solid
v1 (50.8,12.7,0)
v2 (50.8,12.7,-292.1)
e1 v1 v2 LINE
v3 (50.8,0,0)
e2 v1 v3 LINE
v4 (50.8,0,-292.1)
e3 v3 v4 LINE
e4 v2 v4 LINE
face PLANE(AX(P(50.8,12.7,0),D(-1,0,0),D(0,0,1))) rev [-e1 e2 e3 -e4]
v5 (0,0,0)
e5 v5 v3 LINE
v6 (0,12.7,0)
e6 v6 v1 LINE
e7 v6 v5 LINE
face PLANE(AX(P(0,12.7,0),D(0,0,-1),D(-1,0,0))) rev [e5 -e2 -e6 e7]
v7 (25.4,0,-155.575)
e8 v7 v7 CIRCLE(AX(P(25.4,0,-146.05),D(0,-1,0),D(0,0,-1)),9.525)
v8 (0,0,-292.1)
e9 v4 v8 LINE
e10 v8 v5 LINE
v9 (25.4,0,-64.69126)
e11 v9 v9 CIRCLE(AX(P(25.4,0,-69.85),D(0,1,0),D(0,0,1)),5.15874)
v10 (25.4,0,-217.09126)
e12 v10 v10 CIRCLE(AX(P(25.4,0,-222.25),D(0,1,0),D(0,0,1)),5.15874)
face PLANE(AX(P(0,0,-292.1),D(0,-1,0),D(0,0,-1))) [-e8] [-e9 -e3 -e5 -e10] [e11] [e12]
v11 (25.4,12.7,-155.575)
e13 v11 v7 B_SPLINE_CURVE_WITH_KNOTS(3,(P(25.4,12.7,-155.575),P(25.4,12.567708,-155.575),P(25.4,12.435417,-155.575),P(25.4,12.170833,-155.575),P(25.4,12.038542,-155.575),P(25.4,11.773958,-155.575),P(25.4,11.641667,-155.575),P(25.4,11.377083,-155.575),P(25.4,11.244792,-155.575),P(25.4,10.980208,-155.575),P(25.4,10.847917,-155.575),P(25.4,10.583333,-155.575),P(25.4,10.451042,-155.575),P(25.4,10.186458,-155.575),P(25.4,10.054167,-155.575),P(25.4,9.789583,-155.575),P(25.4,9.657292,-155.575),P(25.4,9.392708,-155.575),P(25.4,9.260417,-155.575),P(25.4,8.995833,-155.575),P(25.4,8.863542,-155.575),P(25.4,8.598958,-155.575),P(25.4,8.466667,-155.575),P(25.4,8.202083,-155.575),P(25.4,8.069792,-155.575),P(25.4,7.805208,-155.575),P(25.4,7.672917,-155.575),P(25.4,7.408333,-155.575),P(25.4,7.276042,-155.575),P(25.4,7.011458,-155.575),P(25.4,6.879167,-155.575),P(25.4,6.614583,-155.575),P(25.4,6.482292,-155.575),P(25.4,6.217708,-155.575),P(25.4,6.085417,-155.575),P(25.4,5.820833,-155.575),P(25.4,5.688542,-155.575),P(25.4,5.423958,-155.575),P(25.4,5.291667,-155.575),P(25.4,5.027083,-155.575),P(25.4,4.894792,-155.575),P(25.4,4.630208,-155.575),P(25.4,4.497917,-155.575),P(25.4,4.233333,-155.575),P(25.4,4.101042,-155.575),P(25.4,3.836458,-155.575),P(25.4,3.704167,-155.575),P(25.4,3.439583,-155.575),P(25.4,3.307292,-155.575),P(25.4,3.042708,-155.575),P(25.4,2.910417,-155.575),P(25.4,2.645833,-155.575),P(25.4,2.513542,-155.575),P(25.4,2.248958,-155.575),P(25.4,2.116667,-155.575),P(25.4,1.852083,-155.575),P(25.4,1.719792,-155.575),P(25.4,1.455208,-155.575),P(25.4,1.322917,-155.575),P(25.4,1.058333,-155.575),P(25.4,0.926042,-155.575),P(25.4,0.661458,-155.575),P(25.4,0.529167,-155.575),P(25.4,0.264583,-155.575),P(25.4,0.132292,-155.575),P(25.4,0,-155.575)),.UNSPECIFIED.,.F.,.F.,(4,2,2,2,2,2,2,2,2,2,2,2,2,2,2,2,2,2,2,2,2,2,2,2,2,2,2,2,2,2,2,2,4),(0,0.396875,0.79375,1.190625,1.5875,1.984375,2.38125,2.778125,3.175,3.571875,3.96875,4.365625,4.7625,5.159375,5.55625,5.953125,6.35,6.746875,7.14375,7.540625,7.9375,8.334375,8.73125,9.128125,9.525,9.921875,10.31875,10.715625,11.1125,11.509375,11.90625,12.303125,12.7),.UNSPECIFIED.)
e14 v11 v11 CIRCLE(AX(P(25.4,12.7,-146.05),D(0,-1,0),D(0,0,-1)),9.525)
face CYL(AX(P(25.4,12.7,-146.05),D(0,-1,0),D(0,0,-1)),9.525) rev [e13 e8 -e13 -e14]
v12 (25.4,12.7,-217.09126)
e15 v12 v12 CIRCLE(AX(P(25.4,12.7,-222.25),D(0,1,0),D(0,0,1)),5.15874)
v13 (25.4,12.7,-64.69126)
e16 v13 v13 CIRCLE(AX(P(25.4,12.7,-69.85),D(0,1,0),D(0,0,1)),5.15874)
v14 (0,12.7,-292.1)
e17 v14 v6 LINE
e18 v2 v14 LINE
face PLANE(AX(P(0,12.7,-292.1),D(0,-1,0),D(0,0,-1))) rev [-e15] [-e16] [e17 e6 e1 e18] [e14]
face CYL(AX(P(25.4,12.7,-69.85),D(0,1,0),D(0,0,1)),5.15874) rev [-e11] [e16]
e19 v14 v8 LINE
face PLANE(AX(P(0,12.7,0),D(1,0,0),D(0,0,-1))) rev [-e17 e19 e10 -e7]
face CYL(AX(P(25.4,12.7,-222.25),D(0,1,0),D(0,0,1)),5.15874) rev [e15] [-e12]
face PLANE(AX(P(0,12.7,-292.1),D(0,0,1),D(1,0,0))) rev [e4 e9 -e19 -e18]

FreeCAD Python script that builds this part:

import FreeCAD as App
import Part
import Sketcher
from FreeCAD import Vector
Q = App.Units.Quantity

doc = App.newDocument("Part")
body = doc.addObject("PartDesign::Body", "Body")

# Sketch on XZ plane
sketch1 = body.newObject("Sketcher::SketchObject", "Sketch")
sketch1.AttachmentSupport = (doc.getObject("XZ_Plane"), [""])
sketch1.MapMode = "FlatFace"
sketch1.addGeometry([
    Part.LineSegment(Vector(0, -292.1, 0), Vector(0, 0, 0)),
    Part.LineSegment(Vector(0, 0, 0), Vector(50.8, 0, 0)),
    Part.LineSegment(Vector(50.8, 0, 0), Vector(50.8, -292.1, 0)),
    Part.LineSegment(Vector(50.8, -292.1, 0), Vector(0, -292.1, 0)),
], False)
sketch1.addConstraint([
    Sketcher.Constraint("Coincident", 0, 2, 1, 1),
    Sketcher.Constraint("Coincident", 1, 2, 2, 1),
    Sketcher.Constraint("Coincident", 2, 2, 3, 1),
    Sketcher.Constraint("Coincident", 3, 2, 0, 1),
    Sketcher.Constraint("Vertical", 0),
    Sketcher.Constraint("Horizontal", 1),
    Sketcher.Constraint("Vertical", 2),
    Sketcher.Constraint("Horizontal", 3),
    Sketcher.Constraint("Coincident", 0, 2, -1, 1),
    Sketcher.Constraint("DistanceX", 1, 1, 1, 2, Q("2 in")),
    Sketcher.Constraint("DistanceY", 0, 1, 0, 2, Q("11.5 in")),
])
pad1 = body.newObject("PartDesign::Pad", "Pad")
pad1.Profile = sketch1
pad1.Length = Q("0.5 in")
pad1.Reversed = True

# Sketch on XZ plane
sketch2 = body.newObject("Sketcher::SketchObject", "Sketch001")
sketch2.AttachmentSupport = (doc.getObject("XZ_Plane"), [""])
sketch2.MapMode = "FlatFace"
sketch2.AttachmentOffset = App.Placement(Vector(0, 0, -0.5 * 25.4), App.Rotation())
sketch2.addGeometry([
    Part.Circle(Vector(25.4, -69.85, 0), Vector(0, 0, 1), 5.15874),
    Part.Circle(Vector(25.4, -222.25, 0), Vector(0, 0, 1), 5.15874),
], False)
sketch2.addConstraint([
    Sketcher.Constraint("Equal", 0, 1),
    Sketcher.Constraint("Vertical", 0, 3, 1, 3),
    Sketcher.Constraint("DistanceX", -1, 1, 0, 3, Q("1 in")),
    Sketcher.Constraint("DistanceY", 1, 3, 0, 3, Q("6 in")),
    Sketcher.Constraint("Diameter", 0, Q("0.4062 in")),
    Sketcher.Constraint("DistanceY", 0, 3, -1, 1, Q("2.75 in")),
])
doc.recompute()
hole = body.newObject("PartDesign::Hole", "Hole")
hole.Profile = sketch2
hole.ThreadType = "None"
hole.Diameter = Q("0.4062 in")
hole.DepthType = "ThroughAll"
hole.Reversed = True

# Sketch on XZ plane
sketch3 = body.newObject("Sketcher::SketchObject", "Sketch002")
sketch3.AttachmentSupport = (doc.getObject("XZ_Plane"), [""])
sketch3.MapMode = "FlatFace"
sketch3.addGeometry(Part.Circle(Vector(25.4, -146.05, 0), Vector(0, 0, 1), 9.525), False)
sketch3.addConstraint([
    Sketcher.Constraint("Diameter", 0, Q("0.75 in")),
    Sketcher.Constraint("DistanceX", -1, 1, 0, 3, Q("1 in")),
    Sketcher.Constraint("DistanceY", 0, 3, -1, 1, Q("5.75 in")),
])
pocket1 = body.newObject("PartDesign::Pocket", "Pocket")
pocket1.Profile = sketch3
pocket1.Type = "ThroughAll"

doc.recompute()
